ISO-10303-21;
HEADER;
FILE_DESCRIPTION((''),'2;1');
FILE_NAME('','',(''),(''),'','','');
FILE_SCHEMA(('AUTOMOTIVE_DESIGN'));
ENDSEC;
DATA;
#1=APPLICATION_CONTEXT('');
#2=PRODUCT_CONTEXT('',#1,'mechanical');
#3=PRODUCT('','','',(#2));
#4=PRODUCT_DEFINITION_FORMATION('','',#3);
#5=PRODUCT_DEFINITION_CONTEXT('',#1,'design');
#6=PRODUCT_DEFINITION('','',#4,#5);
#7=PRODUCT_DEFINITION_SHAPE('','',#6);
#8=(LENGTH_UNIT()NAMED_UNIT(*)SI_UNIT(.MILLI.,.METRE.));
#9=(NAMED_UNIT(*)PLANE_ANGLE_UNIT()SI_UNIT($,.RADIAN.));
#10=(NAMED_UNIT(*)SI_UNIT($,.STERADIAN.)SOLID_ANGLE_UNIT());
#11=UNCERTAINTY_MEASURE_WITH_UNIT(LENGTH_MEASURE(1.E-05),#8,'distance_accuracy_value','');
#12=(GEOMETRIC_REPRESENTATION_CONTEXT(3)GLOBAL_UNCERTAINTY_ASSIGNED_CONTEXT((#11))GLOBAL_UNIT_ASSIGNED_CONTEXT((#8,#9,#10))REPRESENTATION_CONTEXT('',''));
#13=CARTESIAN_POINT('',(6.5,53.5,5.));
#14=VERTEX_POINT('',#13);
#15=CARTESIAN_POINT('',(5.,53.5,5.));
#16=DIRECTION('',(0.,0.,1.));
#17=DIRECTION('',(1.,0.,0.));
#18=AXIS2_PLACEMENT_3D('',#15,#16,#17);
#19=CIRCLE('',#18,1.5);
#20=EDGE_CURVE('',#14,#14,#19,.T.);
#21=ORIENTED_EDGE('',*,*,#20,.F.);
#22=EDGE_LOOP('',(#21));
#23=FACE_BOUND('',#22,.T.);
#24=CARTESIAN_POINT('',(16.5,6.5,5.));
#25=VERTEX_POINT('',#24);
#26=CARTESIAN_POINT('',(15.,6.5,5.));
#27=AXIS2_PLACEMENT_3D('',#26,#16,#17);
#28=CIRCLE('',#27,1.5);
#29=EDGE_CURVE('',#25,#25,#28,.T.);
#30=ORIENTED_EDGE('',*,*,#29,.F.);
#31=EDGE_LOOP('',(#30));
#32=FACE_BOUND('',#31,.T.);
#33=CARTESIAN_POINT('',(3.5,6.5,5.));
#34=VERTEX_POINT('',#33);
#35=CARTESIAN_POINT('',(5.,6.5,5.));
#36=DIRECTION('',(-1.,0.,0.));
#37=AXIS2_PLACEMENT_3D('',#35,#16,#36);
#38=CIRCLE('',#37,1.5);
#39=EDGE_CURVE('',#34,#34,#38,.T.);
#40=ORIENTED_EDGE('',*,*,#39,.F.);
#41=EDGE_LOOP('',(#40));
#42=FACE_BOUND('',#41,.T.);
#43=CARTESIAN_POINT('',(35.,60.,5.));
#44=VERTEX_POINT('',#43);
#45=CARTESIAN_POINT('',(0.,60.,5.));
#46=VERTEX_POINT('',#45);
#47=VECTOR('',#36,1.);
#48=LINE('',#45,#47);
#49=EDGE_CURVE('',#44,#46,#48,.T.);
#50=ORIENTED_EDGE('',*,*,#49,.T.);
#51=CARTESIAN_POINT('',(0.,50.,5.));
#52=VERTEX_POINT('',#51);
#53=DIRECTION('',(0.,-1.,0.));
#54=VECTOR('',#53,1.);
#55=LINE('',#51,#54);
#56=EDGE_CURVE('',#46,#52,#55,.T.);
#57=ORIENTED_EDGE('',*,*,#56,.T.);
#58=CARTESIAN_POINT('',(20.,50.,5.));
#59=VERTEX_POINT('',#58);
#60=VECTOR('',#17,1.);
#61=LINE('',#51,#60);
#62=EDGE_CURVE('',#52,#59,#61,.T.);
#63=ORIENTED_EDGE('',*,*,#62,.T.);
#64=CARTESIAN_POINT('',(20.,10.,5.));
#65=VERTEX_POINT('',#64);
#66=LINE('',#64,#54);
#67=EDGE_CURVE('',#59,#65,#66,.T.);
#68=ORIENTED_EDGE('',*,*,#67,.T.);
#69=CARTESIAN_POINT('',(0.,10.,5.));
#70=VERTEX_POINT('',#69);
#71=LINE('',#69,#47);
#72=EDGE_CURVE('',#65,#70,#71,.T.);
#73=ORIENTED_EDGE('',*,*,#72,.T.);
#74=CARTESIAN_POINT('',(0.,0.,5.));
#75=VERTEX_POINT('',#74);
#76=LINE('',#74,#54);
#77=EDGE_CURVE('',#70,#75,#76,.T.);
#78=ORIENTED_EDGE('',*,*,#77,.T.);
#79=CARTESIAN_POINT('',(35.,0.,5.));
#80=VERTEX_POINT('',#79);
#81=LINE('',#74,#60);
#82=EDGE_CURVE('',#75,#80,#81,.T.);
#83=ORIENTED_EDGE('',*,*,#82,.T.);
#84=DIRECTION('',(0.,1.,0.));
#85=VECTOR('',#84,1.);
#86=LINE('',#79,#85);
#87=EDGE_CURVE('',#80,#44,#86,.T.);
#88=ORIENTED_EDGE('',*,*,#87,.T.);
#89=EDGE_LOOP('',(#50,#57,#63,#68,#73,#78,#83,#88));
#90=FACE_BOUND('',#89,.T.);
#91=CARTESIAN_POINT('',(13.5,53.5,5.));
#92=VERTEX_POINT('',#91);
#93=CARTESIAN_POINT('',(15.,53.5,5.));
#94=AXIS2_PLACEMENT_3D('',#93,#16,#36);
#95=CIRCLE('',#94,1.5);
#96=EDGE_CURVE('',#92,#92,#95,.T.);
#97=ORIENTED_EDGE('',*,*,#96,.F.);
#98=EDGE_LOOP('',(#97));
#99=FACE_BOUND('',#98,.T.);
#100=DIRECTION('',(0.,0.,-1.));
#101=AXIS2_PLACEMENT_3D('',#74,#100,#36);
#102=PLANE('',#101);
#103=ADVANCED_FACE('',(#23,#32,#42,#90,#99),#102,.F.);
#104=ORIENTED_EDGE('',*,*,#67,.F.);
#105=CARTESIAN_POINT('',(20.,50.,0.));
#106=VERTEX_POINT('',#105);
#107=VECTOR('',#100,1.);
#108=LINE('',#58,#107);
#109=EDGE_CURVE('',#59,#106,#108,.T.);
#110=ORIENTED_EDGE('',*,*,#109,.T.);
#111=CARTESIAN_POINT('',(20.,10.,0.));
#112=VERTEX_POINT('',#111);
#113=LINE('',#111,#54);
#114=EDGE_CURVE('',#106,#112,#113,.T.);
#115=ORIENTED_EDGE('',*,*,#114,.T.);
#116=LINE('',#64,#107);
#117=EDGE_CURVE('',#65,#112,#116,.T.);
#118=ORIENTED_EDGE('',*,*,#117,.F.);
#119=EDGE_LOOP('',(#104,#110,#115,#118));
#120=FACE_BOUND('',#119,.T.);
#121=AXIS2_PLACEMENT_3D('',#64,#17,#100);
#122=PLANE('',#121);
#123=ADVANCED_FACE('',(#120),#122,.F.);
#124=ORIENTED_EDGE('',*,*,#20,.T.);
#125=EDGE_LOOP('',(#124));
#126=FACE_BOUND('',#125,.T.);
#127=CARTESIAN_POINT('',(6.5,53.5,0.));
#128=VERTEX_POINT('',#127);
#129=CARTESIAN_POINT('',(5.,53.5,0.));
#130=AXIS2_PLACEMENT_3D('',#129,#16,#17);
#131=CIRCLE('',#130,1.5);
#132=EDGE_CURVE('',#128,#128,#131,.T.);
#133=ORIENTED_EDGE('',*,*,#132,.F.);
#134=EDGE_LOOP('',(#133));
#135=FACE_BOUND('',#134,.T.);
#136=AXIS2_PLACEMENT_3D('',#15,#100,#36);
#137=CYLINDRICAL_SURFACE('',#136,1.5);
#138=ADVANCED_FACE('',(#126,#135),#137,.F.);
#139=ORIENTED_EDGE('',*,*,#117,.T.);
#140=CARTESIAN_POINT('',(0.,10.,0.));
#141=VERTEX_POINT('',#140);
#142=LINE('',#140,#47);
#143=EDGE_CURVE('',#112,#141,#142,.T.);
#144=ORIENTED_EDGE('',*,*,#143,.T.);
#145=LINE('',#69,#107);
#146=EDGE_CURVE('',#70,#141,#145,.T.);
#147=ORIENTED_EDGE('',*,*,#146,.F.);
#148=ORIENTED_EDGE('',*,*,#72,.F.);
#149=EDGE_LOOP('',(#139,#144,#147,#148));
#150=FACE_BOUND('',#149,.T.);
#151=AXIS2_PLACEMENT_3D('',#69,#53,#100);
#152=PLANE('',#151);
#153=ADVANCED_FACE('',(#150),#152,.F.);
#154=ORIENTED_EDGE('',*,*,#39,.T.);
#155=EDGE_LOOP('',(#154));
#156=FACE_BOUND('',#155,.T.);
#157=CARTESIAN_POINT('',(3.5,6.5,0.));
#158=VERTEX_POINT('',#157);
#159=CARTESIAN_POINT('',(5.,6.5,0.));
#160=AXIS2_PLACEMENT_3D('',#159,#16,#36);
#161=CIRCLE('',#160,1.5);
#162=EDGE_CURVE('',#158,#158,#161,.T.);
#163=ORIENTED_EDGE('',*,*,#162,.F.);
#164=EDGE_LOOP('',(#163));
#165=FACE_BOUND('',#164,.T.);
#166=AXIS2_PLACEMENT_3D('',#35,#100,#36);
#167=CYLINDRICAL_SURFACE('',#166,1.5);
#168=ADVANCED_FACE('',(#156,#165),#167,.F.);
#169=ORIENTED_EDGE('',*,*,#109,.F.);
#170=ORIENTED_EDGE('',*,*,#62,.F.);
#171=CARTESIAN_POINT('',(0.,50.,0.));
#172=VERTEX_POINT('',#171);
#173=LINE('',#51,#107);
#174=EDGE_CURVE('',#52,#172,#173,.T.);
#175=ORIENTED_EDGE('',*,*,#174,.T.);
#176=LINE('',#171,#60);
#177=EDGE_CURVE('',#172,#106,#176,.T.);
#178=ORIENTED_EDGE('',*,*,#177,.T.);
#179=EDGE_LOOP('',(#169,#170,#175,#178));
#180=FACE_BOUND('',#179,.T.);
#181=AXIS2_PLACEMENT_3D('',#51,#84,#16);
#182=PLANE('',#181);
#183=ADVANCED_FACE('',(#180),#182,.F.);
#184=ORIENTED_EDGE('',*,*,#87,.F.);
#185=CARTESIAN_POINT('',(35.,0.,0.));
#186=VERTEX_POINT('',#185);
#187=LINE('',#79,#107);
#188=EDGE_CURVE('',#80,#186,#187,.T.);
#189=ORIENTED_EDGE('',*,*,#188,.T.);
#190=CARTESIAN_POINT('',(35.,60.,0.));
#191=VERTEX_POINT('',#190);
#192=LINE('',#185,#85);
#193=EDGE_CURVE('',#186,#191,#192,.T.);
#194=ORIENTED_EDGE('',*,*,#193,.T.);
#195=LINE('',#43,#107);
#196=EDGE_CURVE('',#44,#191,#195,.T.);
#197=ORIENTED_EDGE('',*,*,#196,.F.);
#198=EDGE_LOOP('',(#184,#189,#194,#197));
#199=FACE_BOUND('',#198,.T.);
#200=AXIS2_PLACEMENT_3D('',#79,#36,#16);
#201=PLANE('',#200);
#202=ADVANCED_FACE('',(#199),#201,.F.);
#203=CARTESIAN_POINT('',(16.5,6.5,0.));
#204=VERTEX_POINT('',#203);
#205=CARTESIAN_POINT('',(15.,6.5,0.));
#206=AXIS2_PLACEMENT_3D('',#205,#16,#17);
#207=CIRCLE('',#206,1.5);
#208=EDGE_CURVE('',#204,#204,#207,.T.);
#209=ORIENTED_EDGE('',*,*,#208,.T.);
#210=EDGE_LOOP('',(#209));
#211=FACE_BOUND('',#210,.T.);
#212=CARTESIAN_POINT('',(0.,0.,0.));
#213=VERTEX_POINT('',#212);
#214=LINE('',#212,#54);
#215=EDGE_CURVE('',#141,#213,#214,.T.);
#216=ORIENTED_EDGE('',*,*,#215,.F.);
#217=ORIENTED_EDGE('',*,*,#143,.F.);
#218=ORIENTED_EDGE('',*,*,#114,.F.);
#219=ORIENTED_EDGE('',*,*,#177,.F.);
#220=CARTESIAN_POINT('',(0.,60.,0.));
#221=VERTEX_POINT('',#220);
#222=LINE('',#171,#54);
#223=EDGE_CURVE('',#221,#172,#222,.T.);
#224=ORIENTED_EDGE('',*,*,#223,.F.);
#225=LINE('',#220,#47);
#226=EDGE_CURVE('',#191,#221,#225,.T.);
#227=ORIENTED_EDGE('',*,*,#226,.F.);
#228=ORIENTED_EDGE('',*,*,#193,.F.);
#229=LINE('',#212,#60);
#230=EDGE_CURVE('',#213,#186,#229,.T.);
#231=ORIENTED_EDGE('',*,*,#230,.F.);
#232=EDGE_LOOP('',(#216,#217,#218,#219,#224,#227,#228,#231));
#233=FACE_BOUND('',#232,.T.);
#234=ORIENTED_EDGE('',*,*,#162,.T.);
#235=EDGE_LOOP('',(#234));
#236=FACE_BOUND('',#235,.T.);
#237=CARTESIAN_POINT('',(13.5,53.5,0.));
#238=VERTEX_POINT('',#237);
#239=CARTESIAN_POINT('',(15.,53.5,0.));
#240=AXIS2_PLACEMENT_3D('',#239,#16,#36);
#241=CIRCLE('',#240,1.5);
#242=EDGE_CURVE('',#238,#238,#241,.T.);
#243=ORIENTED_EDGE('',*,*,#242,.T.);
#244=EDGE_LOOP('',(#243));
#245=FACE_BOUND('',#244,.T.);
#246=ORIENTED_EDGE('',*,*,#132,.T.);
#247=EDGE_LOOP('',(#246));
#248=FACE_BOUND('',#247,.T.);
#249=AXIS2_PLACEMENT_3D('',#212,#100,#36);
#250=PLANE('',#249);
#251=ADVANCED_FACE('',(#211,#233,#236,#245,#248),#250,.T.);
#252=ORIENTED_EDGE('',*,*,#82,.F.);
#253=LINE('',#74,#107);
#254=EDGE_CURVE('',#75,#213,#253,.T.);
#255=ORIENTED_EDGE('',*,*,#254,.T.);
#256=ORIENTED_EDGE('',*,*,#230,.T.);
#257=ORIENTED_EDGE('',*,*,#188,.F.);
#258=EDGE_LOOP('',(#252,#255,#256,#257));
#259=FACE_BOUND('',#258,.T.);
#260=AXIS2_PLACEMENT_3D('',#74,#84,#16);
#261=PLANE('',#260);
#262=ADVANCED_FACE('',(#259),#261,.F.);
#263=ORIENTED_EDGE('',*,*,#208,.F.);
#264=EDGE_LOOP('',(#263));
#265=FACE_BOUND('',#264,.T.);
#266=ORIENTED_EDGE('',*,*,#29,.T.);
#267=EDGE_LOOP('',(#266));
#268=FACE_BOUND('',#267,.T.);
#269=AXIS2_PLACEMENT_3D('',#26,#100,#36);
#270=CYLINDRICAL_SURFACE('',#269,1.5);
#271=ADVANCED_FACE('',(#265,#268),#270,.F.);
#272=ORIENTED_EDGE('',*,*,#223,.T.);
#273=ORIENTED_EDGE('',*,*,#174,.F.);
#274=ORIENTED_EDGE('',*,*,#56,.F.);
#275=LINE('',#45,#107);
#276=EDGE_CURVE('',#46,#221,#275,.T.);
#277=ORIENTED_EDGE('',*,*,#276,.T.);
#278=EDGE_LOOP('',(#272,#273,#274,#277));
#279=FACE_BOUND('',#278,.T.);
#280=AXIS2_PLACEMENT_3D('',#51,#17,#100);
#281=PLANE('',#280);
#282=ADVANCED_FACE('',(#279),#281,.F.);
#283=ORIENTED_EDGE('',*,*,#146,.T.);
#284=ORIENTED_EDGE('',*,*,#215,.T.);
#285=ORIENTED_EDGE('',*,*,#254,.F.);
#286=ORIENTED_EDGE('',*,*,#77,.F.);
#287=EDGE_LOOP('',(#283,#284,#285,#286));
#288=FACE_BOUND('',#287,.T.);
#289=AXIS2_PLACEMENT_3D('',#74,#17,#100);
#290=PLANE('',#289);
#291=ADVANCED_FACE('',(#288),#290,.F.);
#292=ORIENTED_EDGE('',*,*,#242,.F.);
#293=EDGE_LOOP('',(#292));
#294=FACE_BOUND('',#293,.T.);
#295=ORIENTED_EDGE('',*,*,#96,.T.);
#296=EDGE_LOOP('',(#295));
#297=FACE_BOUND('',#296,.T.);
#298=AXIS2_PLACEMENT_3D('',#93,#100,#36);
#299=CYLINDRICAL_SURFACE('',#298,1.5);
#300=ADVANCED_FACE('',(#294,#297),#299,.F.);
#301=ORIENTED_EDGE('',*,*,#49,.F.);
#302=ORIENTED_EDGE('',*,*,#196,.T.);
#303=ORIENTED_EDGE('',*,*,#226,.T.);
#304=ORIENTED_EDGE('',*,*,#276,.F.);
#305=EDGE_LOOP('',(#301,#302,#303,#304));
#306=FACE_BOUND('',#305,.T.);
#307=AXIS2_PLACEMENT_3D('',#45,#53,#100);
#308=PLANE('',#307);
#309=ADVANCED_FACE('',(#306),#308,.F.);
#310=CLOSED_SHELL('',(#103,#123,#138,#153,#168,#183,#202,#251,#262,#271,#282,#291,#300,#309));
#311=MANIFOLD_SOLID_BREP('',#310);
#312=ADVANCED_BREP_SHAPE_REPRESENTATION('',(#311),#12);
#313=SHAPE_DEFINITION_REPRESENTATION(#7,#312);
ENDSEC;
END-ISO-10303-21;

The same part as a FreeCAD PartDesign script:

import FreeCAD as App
import Part
import Sketcher
from FreeCAD import Vector
Q = App.Units.Quantity


def add_polygon(sketch, points):
    """Adds a closed chain of lines whose ends are joined by coincident constraints."""
    first, n = sketch.GeometryCount, len(points)
    for a, b in zip(points, points[1:] + points[:1]):
        sketch.addGeometry(Part.LineSegment(App.Vector(*a, 0), App.Vector(*b, 0)), False)
    for i in range(n):
        sketch.addConstraint(Sketcher.Constraint("Coincident", first + i, 2, first + (i + 1) % n, 1))

doc = App.newDocument("Part")
body = doc.addObject("PartDesign::Body", "Body")

# Sketch on XY plane
sketch1 = doc.addObject("Sketcher::SketchObject", "Sketch")
body.addObject(sketch1)
sketch1.AttachmentSupport = (doc.XY_Plane, [""])
sketch1.MapMode = "FlatFace"
add_polygon(sketch1, [(0, 0), (35, 0), (35, 60), (0, 60), (0, 50), (20, 50), (20, 10), (0, 10)])  # lines 0-7
sketch1.addGeometry(Part.Circle(Vector(5, 6.5, 0), Vector(0, 0, 1), 1.5), False)  # 8
sketch1.addGeometry(Part.Circle(Vector(15, 6.5, 0), Vector(0, 0, 1), 1.5), False)  # 9
sketch1.addGeometry(Part.Circle(Vector(5, 53.5, 0), Vector(0, 0, 1), 1.5), False)  # 10
sketch1.addGeometry(Part.Circle(Vector(15, 53.5, 0), Vector(0, 0, 1), 1.5), False)  # 11
sketch1.addConstraint([
    Sketcher.Constraint("Horizontal", 0),
    Sketcher.Constraint("Vertical", 1),
    Sketcher.Constraint("Horizontal", 2),
    Sketcher.Constraint("Vertical", 3),
    Sketcher.Constraint("Horizontal", 4),
    Sketcher.Constraint("Vertical", 5),
    Sketcher.Constraint("Horizontal", 6),
    Sketcher.Constraint("Vertical", 7),
    Sketcher.Constraint("Coincident", 7, 2, -1, 1),
    Sketcher.Constraint("Equal", 8, 9),
    Sketcher.Constraint("Equal", 9, 10),
    Sketcher.Constraint("Equal", 10, 11),
    Sketcher.Constraint("PointOnObject", 2, 2, -2),
    Sketcher.Constraint("Horizontal", 8, 3, 9, 3),
    Sketcher.Constraint("Horizontal", 10, 3, 11, 3),
    Sketcher.Constraint("Vertical", 8, 3, 10, 3),
    Sketcher.Constraint("Vertical", 9, 3, 11, 3),
    Sketcher.Constraint("Equal", 3, 7),
    Sketcher.Constraint("Diameter", 8, Q("3 mm")),
    Sketcher.Constraint("DistanceX", 0, 1, 0, 2, Q("35 mm")),
    Sketcher.Constraint("DistanceX", 4, 1, 4, 2, Q("20 mm")),
    Sketcher.Constraint("DistanceY", 1, 1, 1, 2, Q("60 mm")),
    Sketcher.Constraint("DistanceY", 3, 2, 3, 1, Q("10 mm")),
    Sketcher.Constraint("DistanceX", -1, 1, 8, 3, Q("5 mm")),
    Sketcher.Constraint("DistanceX", -1, 1, 9, 3, Q("15 mm")),
    Sketcher.Constraint("DistanceY", 8, 3, 10, 3, Q("47 mm")),
    Sketcher.Constraint("DistanceY", -1, 1, 8, 3, Q("6.5 mm")),
])
pad1 = doc.addObject("PartDesign::Pad", "Pad")
body.addObject(pad1)
pad1.Profile = sketch1
pad1.Length = 5

doc.recompute()
